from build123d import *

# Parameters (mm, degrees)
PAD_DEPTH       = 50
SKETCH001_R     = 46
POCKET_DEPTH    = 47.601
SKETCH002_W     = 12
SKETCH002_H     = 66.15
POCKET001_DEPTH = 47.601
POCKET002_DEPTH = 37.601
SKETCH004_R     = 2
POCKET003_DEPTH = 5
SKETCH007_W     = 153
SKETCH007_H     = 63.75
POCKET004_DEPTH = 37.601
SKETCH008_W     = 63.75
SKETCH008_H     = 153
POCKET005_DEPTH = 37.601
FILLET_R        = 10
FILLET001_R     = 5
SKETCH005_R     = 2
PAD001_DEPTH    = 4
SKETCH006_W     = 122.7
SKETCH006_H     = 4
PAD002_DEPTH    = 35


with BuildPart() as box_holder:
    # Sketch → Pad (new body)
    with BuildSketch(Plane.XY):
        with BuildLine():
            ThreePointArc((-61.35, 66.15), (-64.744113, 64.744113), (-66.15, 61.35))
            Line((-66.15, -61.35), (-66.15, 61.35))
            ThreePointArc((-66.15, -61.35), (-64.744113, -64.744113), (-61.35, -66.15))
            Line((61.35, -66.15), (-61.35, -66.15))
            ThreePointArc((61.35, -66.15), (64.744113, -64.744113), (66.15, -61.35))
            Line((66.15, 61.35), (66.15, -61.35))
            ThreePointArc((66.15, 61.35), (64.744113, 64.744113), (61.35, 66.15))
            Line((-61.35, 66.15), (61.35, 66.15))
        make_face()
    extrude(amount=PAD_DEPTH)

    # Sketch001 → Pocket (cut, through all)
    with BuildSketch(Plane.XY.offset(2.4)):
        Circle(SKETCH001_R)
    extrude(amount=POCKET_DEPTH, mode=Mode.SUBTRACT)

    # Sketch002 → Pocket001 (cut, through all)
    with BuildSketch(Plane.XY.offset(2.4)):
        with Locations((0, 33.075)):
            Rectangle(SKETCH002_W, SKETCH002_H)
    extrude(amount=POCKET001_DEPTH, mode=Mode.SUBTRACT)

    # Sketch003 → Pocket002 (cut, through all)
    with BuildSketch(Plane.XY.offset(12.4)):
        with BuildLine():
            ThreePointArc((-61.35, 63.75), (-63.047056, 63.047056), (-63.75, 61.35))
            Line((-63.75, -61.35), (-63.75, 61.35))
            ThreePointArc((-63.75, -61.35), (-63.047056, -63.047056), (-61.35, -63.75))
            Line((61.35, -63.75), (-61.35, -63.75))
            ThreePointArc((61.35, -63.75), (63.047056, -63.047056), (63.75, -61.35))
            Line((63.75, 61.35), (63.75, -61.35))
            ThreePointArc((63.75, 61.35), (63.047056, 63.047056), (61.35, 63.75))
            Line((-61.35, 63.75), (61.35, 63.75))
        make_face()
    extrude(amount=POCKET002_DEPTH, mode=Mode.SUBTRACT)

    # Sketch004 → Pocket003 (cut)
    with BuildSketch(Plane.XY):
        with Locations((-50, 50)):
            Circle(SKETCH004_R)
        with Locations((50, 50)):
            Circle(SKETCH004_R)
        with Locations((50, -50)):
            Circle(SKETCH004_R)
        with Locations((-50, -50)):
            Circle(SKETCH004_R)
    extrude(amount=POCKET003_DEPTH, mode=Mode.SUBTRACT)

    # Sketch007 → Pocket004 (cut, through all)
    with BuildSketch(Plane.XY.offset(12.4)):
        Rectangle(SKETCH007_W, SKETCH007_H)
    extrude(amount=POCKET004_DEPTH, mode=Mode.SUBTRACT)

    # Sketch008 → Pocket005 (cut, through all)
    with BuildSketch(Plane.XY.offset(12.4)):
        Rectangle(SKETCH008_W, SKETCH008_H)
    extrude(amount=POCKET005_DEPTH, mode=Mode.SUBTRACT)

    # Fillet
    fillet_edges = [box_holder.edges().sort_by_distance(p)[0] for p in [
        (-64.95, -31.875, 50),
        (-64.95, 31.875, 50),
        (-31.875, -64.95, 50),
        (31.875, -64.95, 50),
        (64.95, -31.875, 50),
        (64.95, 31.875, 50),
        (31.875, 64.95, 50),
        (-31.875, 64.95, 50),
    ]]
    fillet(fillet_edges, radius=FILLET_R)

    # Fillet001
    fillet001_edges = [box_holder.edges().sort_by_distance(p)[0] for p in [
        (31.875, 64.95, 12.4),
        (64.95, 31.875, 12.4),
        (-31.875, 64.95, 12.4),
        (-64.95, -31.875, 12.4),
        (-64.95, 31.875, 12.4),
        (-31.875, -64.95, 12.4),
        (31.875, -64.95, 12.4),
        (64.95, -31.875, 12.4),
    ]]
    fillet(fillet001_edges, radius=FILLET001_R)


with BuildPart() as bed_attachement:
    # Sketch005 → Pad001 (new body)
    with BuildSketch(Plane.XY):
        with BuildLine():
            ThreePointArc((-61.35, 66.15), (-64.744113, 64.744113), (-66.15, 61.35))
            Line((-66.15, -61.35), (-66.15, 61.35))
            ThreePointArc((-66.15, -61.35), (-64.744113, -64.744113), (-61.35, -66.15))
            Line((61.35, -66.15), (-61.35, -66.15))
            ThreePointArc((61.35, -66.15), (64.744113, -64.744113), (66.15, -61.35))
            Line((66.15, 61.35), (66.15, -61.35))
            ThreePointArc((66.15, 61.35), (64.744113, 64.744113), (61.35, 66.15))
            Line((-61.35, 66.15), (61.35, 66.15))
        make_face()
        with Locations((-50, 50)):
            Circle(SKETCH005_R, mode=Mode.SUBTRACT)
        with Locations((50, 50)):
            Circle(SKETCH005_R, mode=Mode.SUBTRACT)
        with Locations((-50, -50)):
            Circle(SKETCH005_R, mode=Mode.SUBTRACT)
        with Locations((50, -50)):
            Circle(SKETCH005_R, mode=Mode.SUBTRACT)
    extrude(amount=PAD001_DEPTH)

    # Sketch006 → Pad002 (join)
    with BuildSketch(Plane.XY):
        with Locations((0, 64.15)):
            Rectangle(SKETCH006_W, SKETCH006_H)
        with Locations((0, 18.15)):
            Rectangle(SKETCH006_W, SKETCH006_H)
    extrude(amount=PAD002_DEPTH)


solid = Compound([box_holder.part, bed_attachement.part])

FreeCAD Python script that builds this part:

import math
import FreeCAD as App
import Part
import Sketcher


def edges_at(feature, points):
    """Names of the edges that pass closest to the given points."""
    edges = feature.Shape.Edges
    near = lambda p: min(range(len(edges)), key=lambda i: edges[i].distToShape(Part.Vertex(*p))[0])
    return sorted({f"Edge{near(p) + 1}" for p in points})


def add_polygon(sketch, points):
    """Adds a closed chain of lines whose ends are joined by coincident constraints."""
    first, n = sketch.GeometryCount, len(points)
    for a, b in zip(points, points[1:] + points[:1]):
        sketch.addGeometry(Part.LineSegment(App.Vector(*a, 0), App.Vector(*b, 0)), False)
    for i in range(n):
        sketch.addConstraint(Sketcher.Constraint("Coincident", first + i, 2, first + (i + 1) % n, 1))

doc = App.newDocument("Part")
params = doc.addObject("Spreadsheet::Sheet", "Params")
for row, (alias, value) in enumerate([
    ("sketch1_radius", "4.799998 mm"),
    ("sketch1_width", "122.7 mm"),
    ("pad1_length", "50 mm"),
    ("sketch2_diameter", "92 mm"),
    ("sketch3_width", "12 mm"),
    ("sketch3_height", "66.15 mm"),
    ("sketch4_radius", "2.400001 mm"),
    ("sketch4_width", "122.7 mm"),
    ("sketch5_diameter", "4 mm"),
    ("pocket4_length", "5 mm"),
    ("sketch6_width", "153 mm"),
    ("sketch6_height", "63.75 mm"),
    ("sketch7_height", "153 mm"),
    ("sketch7_width", "63.75 mm"),
    ("fillet_radius", "10 mm"),
    ("fillet2_radius", "5 mm"),
    ("sketch8_diameter", "4 mm"),
    ("sketch8_radius", "4.799998 mm"),
    ("sketch8_width", "122.7 mm"),
    ("pad2_length", "4 mm"),
    ("sketch9_height", "4 mm"),
    ("sketch9_width", "122.7 mm"),
    ("pad3_length", "35 mm"),
], start=1):
    params.set(f"A{row}", alias)
    params.set(f"B{row}", "=" + value)
    params.setAlias(f"B{row}", alias)

body = doc.addObject("PartDesign::Body", "Body")

# Sketch on XY plane
sketch1 = body.newObject("Sketcher::SketchObject", "Sketch")
sketch1.AttachmentSupport = (doc.getObject("XY_Plane"), [""])
sketch1.MapMode = "FlatFace"
sketch1.addGeometry([
    Part.ArcOfCircle(Part.Circle(App.Vector(-61.350002, 61.350002, 0), App.Vector(0, 0, 1), 4.799998), math.radians(89.999982), math.radians(180.000018)),  # 0
    Part.LineSegment(App.Vector(-66.15, 61.35, 0), App.Vector(-66.15, -61.35, 0)),  # 1
    Part.ArcOfCircle(Part.Circle(App.Vector(-61.350002, -61.350002, 0), App.Vector(0, 0, 1), 4.799998), math.radians(179.999982), math.radians(270.000018)),  # 2
    Part.LineSegment(App.Vector(-61.35, -66.15, 0), App.Vector(61.35, -66.15, 0)),  # 3
    Part.ArcOfCircle(Part.Circle(App.Vector(61.350002, -61.350002, 0), App.Vector(0, 0, 1), 4.799998), math.radians(-90.000018), math.radians(0.000018)),  # 4
    Part.LineSegment(App.Vector(66.15, -61.35, 0), App.Vector(66.15, 61.35, 0)),  # 5
    Part.ArcOfCircle(Part.Circle(App.Vector(61.350002, 61.350002, 0), App.Vector(0, 0, 1), 4.799998), math.radians(-0.000018), math.radians(90.000018)),  # 6
    Part.LineSegment(App.Vector(61.35, 66.15, 0), App.Vector(-61.35, 66.15, 0)),  # 7
], False)
sketch1.addConstraint([
    Sketcher.Constraint("Tangent", 0, 2, 1, 1),
    Sketcher.Constraint("Tangent", 1, 2, 2, 1),
    Sketcher.Constraint("Tangent", 2, 2, 3, 1),
    Sketcher.Constraint("Tangent", 3, 2, 4, 1),
    Sketcher.Constraint("Tangent", 4, 2, 5, 1),
    Sketcher.Constraint("Tangent", 5, 2, 6, 1),
    Sketcher.Constraint("Tangent", 6, 2, 7, 1),
    Sketcher.Constraint("Tangent", 7, 2, 0, 1),
    Sketcher.Constraint("Vertical", 1),
    Sketcher.Constraint("Horizontal", 3),
    Sketcher.Constraint("Vertical", 5),
    Sketcher.Constraint("Horizontal", 7),
    Sketcher.Constraint("Equal", 0, 2),
    Sketcher.Constraint("Equal", 2, 4),
    Sketcher.Constraint("Equal", 4, 6),
    Sketcher.Constraint("Symmetric", 0, 3, 4, 3, -1, 1),
    Sketcher.Constraint("Equal", 7, 1),
    Sketcher.Constraint("Radius", 0, 4.799998),
    Sketcher.Constraint("DistanceX", 3, 1, 3, 2, 122.7),
])
sketch1.setExpression("Constraints[17]", "Params.sketch1_radius")
sketch1.setExpression("Constraints[18]", "Params.sketch1_width")
pad1 = body.newObject("PartDesign::Pad", "Pad")
pad1.Profile = sketch1
pad1.setExpression("Length", "Params.pad1_length")

# Sketch on XY plane
sketch2 = body.newObject("Sketcher::SketchObject", "Sketch001")
sketch2.AttachmentSupport = (doc.getObject("XY_Plane"), [""])
sketch2.MapMode = "FlatFace"
sketch2.AttachmentOffset = App.Placement(App.Vector(0, 0, 2.4), App.Rotation())
sketch2.addGeometry(Part.Circle(App.Vector(0, 0, 0), App.Vector(0, 0, 1), 46), False)
sketch2.addConstraint([
    Sketcher.Constraint("Coincident", 0, 3, -1, 1),
    Sketcher.Constraint("Diameter", 0, 92.0),
])
sketch2.setExpression("Constraints[1]", "Params.sketch2_diameter")
pocket1 = body.newObject("PartDesign::Pocket", "Pocket")
pocket1.Profile = sketch2
pocket1.Type = "ThroughAll"
pocket1.Reversed = True

# Sketch on XY plane
sketch3 = body.newObject("Sketcher::SketchObject", "Sketch002")
sketch3.AttachmentSupport = (doc.getObject("XY_Plane"), [""])
sketch3.MapMode = "FlatFace"
sketch3.AttachmentOffset = App.Placement(App.Vector(0, 0, 2.4), App.Rotation())
add_polygon(sketch3, [(-6, 66.15), (-6, 0), (6, 0), (6, 66.15)])  # lines 0-3
sketch3.addConstraint([
    Sketcher.Constraint("Vertical", 0),
    Sketcher.Constraint("Horizontal", 1),
    Sketcher.Constraint("Vertical", 2),
    Sketcher.Constraint("Horizontal", 3),
    Sketcher.Constraint("Symmetric", 0, 2, 1, 2, -1, 1),
    Sketcher.Constraint("DistanceX", 1, 1, 1, 2, 12.0),
    Sketcher.Constraint("DistanceY", 0, 2, 0, 1, 66.15),
])
sketch3.setExpression("Constraints[9]", "Params.sketch3_width")
sketch3.setExpression("Constraints[10]", "Params.sketch3_height")
pocket2 = body.newObject("PartDesign::Pocket", "Pocket001")
pocket2.Profile = sketch3
pocket2.Type = "ThroughAll"
pocket2.Reversed = True

# Sketch on XY plane
sketch4 = body.newObject("Sketcher::SketchObject", "Sketch003")
sketch4.AttachmentSupport = (doc.getObject("XY_Plane"), [""])
sketch4.MapMode = "FlatFace"
sketch4.AttachmentOffset = App.Placement(App.Vector(0, 0, 12.4), App.Rotation())
sketch4.addGeometry([
    Part.ArcOfCircle(Part.Circle(App.Vector(-61.349999, 61.349999, 0), App.Vector(0, 0, 1), 2.400001), math.radians(90.000022), math.radians(179.999978)),  # 0
    Part.LineSegment(App.Vector(-63.75, 61.35, 0), App.Vector(-63.75, -61.35, 0)),  # 1
    Part.ArcOfCircle(Part.Circle(App.Vector(-61.349999, -61.349999, 0), App.Vector(0, 0, 1), 2.400001), math.radians(-179.999978), math.radians(-90.000022)),  # 2
    Part.LineSegment(App.Vector(-61.35, -63.75, 0), App.Vector(61.35, -63.75, 0)),  # 3
    Part.ArcOfCircle(Part.Circle(App.Vector(61.349999, -61.349999, 0), App.Vector(0, 0, 1), 2.400001), math.radians(-89.999978), math.radians(-0.000022)),  # 4
    Part.LineSegment(App.Vector(63.75, -61.35, 0), App.Vector(63.75, 61.35, 0)),  # 5
    Part.ArcOfCircle(Part.Circle(App.Vector(61.349999, 61.349999, 0), App.Vector(0, 0, 1), 2.400001), math.radians(0.000022), math.radians(89.999978)),  # 6
    Part.LineSegment(App.Vector(61.35, 63.75, 0), App.Vector(-61.35, 63.75, 0)),  # 7
], False)
sketch4.addConstraint([
    Sketcher.Constraint("Tangent", 0, 2, 1, 1),
    Sketcher.Constraint("Tangent", 1, 2, 2, 1),
    Sketcher.Constraint("Tangent", 2, 2, 3, 1),
    Sketcher.Constraint("Tangent", 3, 2, 4, 1),
    Sketcher.Constraint("Tangent", 4, 2, 5, 1),
    Sketcher.Constraint("Tangent", 5, 2, 6, 1),
    Sketcher.Constraint("Tangent", 6, 2, 7, 1),
    Sketcher.Constraint("Tangent", 7, 2, 0, 1),
    Sketcher.Constraint("Vertical", 1),
    Sketcher.Constraint("Horizontal", 3),
    Sketcher.Constraint("Vertical", 5),
    Sketcher.Constraint("Horizontal", 7),
    Sketcher.Constraint("Equal", 0, 2),
    Sketcher.Constraint("Equal", 2, 4),
    Sketcher.Constraint("Equal", 4, 6),
    Sketcher.Constraint("Symmetric", 0, 3, 4, 3, -1, 1),
    Sketcher.Constraint("Equal", 7, 1),
    Sketcher.Constraint("Radius", 0, 2.400001),
    Sketcher.Constraint("DistanceX", 3, 1, 3, 2, 122.7),
])
sketch4.setExpression("Constraints[17]", "Params.sketch4_radius")
sketch4.setExpression("Constraints[18]", "Params.sketch4_width")
pocket3 = body.newObject("PartDesign::Pocket", "Pocket002")
pocket3.Profile = sketch4
pocket3.Type = "ThroughAll"
pocket3.Reversed = True

# Sketch on XY plane
sketch5 = body.newObject("Sketcher::SketchObject", "Sketch004")
sketch5.AttachmentSupport = (doc.getObject("XY_Plane"), [""])
sketch5.MapMode = "FlatFace"
sketch5.addGeometry([
    Part.Circle(App.Vector(-50, 50, 0), App.Vector(0, 0, 1), 2),
    Part.Circle(App.Vector(50, 50, 0), App.Vector(0, 0, 1), 2),
    Part.Circle(App.Vector(50, -50, 0), App.Vector(0, 0, 1), 2),
    Part.Circle(App.Vector(-50, -50, 0), App.Vector(0, 0, 1), 2),
], False)
sketch5.addConstraint([
    Sketcher.Constraint("Equal", 0, 1),
    Sketcher.Constraint("Equal", 1, 2),
    Sketcher.Constraint("Equal", 2, 3),
    Sketcher.Constraint("Symmetric", 0, 3, 2, 3, -1, 1),
    Sketcher.Constraint("Symmetric", 1, 3, 3, 3, -1, 1),
    Sketcher.Constraint("Symmetric", 0, 3, 1, 3, -2),
    Sketcher.Constraint("Diameter", 0, 4.0),
    Sketcher.Constraint("DistanceX", 0, 3, -1, 1, 50.0),
    Sketcher.Constraint("DistanceY", -1, 1, 0, 3, 50.0),
])
sketch5.setExpression("Constraints[6]", "Params.sketch5_diameter")
pocket4 = body.newObject("PartDesign::Pocket", "Pocket003")
pocket4.Profile = sketch5
pocket4.setExpression("Length", "Params.pocket4_length")
pocket4.Reversed = True

# Sketch on XY plane
sketch6 = body.newObject("Sketcher::SketchObject", "Sketch005")
sketch6.AttachmentSupport = (doc.getObject("XY_Plane"), [""])
sketch6.MapMode = "FlatFace"
sketch6.AttachmentOffset = App.Placement(App.Vector(0, 0, 12.4), App.Rotation())
add_polygon(sketch6, [(-76.5, 31.875), (-76.5, -31.875), (76.5, -31.875), (76.5, 31.875)])  # lines 0-3
sketch6.addConstraint([
    Sketcher.Constraint("Vertical", 0),
    Sketcher.Constraint("Horizontal", 1),
    Sketcher.Constraint("Vertical", 2),
    Sketcher.Constraint("Horizontal", 3),
    Sketcher.Constraint("Symmetric", 0, 2, 2, 2, -1, 1),
    Sketcher.Constraint("DistanceX", 1, 1, 1, 2, 153.0),
    Sketcher.Constraint("DistanceY", 0, 2, 0, 1, 63.75),
])
sketch6.setExpression("Constraints[9]", "Params.sketch6_width")
sketch6.setExpression("Constraints[10]", "Params.sketch6_height")
pocket5 = body.newObject("PartDesign::Pocket", "Pocket004")
pocket5.Profile = sketch6
pocket5.Type = "ThroughAll"
pocket5.Reversed = True

# Sketch on XY plane
sketch7 = body.newObject("Sketcher::SketchObject", "Sketch006")
sketch7.AttachmentSupport = (doc.getObject("XY_Plane"), [""])
sketch7.MapMode = "FlatFace"
sketch7.AttachmentOffset = App.Placement(App.Vector(0, 0, 12.4), App.Rotation())
add_polygon(sketch7, [(-31.875, 76.5), (-31.875, -76.5), (31.875, -76.5), (31.875, 76.5)])  # lines 0-3
sketch7.addConstraint([
    Sketcher.Constraint("Vertical", 0),
    Sketcher.Constraint("Horizontal", 1),
    Sketcher.Constraint("Vertical", 2),
    Sketcher.Constraint("Horizontal", 3),
    Sketcher.Constraint("Symmetric", 0, 2, 2, 2, -1, 1),
    Sketcher.Constraint("DistanceY", 0, 2, 0, 1, 153.0),
    Sketcher.Constraint("DistanceX", 1, 1, 1, 2, 63.75),
])
sketch7.setExpression("Constraints[9]", "Params.sketch7_height")
sketch7.setExpression("Constraints[10]", "Params.sketch7_width")
pocket6 = body.newObject("PartDesign::Pocket", "Pocket005")
pocket6.Profile = sketch7
pocket6.Type = "ThroughAll"
pocket6.Reversed = True
doc.recompute()

fillet = body.newObject("PartDesign::Fillet", "Fillet")
fillet.Base = (pocket6, edges_at(pocket6, [
    (-64.95, -31.875, 50),
    (-64.95, 31.875, 50),
    (-31.875, -64.95, 50),
    (31.875, -64.95, 50),
    (64.95, -31.875, 50),
    (64.95, 31.875, 50),
    (31.875, 64.95, 50),
    (-31.875, 64.95, 50),
]))
fillet.setExpression("Radius", "Params.fillet_radius")
doc.recompute()

fillet2 = body.newObject("PartDesign::Fillet", "Fillet001")
fillet2.Base = (fillet, edges_at(fillet, [
    (31.875, 64.95, 12.4),
    (64.95, 31.875, 12.4),
    (-31.875, 64.95, 12.4),
    (-64.95, -31.875, 12.4),
    (-64.95, 31.875, 12.4),
    (-31.875, -64.95, 12.4),
    (31.875, -64.95, 12.4),
    (64.95, -31.875, 12.4),
]))
fillet2.setExpression("Radius", "Params.fillet2_radius")
body2 = doc.addObject("PartDesign::Body", "Body001")

# Sketch on XY plane
sketch8 = body2.newObject("Sketcher::SketchObject", "Sketch007")
sketch8.AttachmentSupport = (doc.getObject("XY_Plane001"), [""])
sketch8.MapMode = "FlatFace"
sketch8.addGeometry([
    Part.ArcOfCircle(Part.Circle(App.Vector(-61.350002, 61.350002, 0), App.Vector(0, 0, 1), 4.799998), math.radians(89.999982), math.radians(180.000018)),  # 0
    Part.LineSegment(App.Vector(-66.15, 61.35, 0), App.Vector(-66.15, -61.35, 0)),  # 1
    Part.ArcOfCircle(Part.Circle(App.Vector(-61.350002, -61.350002, 0), App.Vector(0, 0, 1), 4.799998), math.radians(179.999982), math.radians(270.000018)),  # 2
    Part.LineSegment(App.Vector(-61.35, -66.15, 0), App.Vector(61.35, -66.15, 0)),  # 3
    Part.ArcOfCircle(Part.Circle(App.Vector(61.350002, -61.350002, 0), App.Vector(0, 0, 1), 4.799998), math.radians(-90.000018), math.radians(0.000018)),  # 4
    Part.LineSegment(App.Vector(66.15, -61.35, 0), App.Vector(66.15, 61.35, 0)),  # 5
    Part.ArcOfCircle(Part.Circle(App.Vector(61.350002, 61.350002, 0), App.Vector(0, 0, 1), 4.799998), math.radians(-0.000018), math.radians(90.000018)),  # 6
    Part.LineSegment(App.Vector(61.35, 66.15, 0), App.Vector(-61.35, 66.15, 0)),  # 7
    Part.Circle(App.Vector(-50, -50, 0), App.Vector(0, 0, 1), 2),  # 8
    Part.Circle(App.Vector(50, -50, 0), App.Vector(0, 0, 1), 2),  # 9
    Part.Circle(App.Vector(-50, 50, 0), App.Vector(0, 0, 1), 2),  # 10
    Part.Circle(App.Vector(50, 50, 0), App.Vector(0, 0, 1), 2),  # 11
], False)
sketch8.addConstraint([
    Sketcher.Constraint("Tangent", 0, 2, 1, 1),
    Sketcher.Constraint("Tangent", 1, 2, 2, 1),
    Sketcher.Constraint("Tangent", 2, 2, 3, 1),
    Sketcher.Constraint("Tangent", 3, 2, 4, 1),
    Sketcher.Constraint("Tangent", 4, 2, 5, 1),
    Sketcher.Constraint("Tangent", 5, 2, 6, 1),
    Sketcher.Constraint("Tangent", 6, 2, 7, 1),
    Sketcher.Constraint("Tangent", 7, 2, 0, 1),
    Sketcher.Constraint("Vertical", 1),
    Sketcher.Constraint("Horizontal", 3),
    Sketcher.Constraint("Vertical", 5),
    Sketcher.Constraint("Horizontal", 7),
    Sketcher.Constraint("Equal", 0, 2),
    Sketcher.Constraint("Equal", 2, 4),
    Sketcher.Constraint("Equal", 4, 6),
    Sketcher.Constraint("Equal", 8, 9),
    Sketcher.Constraint("Equal", 9, 10),
    Sketcher.Constraint("Equal", 10, 11),
    Sketcher.Constraint("Symmetric", 0, 3, 4, 3, -1, 1),
    Sketcher.Constraint("Symmetric", 9, 3, 10, 3, -1, 1),
    Sketcher.Constraint("Symmetric", 8, 3, 11, 3, -1, 1),
    Sketcher.Constraint("Symmetric", 8, 3, 9, 3, -2),
    Sketcher.Constraint("Equal", 7, 1),
    Sketcher.Constraint("Diameter", 8, 4.0),
    Sketcher.Constraint("Radius", 0, 4.799998),
    Sketcher.Constraint("DistanceX", 3, 1, 3, 2, 122.7),
    Sketcher.Constraint("DistanceX", 8, 3, -1, 1, 50.0),
    Sketcher.Constraint("DistanceY", 8, 3, -1, 1, 50.0),
])
sketch8.setExpression("Constraints[23]", "Params.sketch8_diameter")
sketch8.setExpression("Constraints[24]", "Params.sketch8_radius")
sketch8.setExpression("Constraints[25]", "Params.sketch8_width")
pad2 = body2.newObject("PartDesign::Pad", "Pad001")
pad2.Profile = sketch8
pad2.setExpression("Length", "Params.pad2_length")

# Sketch on XY plane
sketch9 = body2.newObject("Sketcher::SketchObject", "Sketch008")
sketch9.AttachmentSupport = (doc.getObject("XY_Plane001"), [""])
sketch9.MapMode = "FlatFace"
add_polygon(sketch9, [(-61.35, 66.15), (-61.35, 62.15), (61.35, 62.15), (61.35, 66.15)])  # lines 0-3
add_polygon(sketch9, [(-61.35, 20.15), (-61.35, 16.15), (61.35, 16.15), (61.35, 20.15)])  # lines 4-7
sketch9.addConstraint([
    Sketcher.Constraint("Vertical", 0),
    Sketcher.Constraint("Horizontal", 1),
    Sketcher.Constraint("Vertical", 2),
    Sketcher.Constraint("Horizontal", 3),
    Sketcher.Constraint("Vertical", 4),
    Sketcher.Constraint("Horizontal", 5),
    Sketcher.Constraint("Vertical", 6),
    Sketcher.Constraint("Horizontal", 7),
    Sketcher.Constraint("Vertical", 3, 2, 4, 2),
    Sketcher.Constraint("Vertical", 2, 2, 5, 2),
    Sketcher.Constraint("Equal", 2, 4),
    Sketcher.Constraint("DistanceY", 0, 2, 0, 1, 4.0),
    Sketcher.Constraint("DistanceX", 1, 1, 1, 2, 122.7),
    Sketcher.Constraint("DistanceY", 4, 2, 0, 2, 46.0),
    Sketcher.Constraint("DistanceX", 0, 2, -1, 1, 61.35),
    Sketcher.Constraint("DistanceY", -1, 1, 0, 2, 62.15),
])
sketch9.setExpression("Constraints[19]", "Params.sketch9_height")
sketch9.setExpression("Constraints[20]", "Params.sketch9_width")
pad3 = body2.newObject("PartDesign::Pad", "Pad002")
pad3.Profile = sketch9
pad3.setExpression("Length", "Params.pad3_length")

doc.recompute()
